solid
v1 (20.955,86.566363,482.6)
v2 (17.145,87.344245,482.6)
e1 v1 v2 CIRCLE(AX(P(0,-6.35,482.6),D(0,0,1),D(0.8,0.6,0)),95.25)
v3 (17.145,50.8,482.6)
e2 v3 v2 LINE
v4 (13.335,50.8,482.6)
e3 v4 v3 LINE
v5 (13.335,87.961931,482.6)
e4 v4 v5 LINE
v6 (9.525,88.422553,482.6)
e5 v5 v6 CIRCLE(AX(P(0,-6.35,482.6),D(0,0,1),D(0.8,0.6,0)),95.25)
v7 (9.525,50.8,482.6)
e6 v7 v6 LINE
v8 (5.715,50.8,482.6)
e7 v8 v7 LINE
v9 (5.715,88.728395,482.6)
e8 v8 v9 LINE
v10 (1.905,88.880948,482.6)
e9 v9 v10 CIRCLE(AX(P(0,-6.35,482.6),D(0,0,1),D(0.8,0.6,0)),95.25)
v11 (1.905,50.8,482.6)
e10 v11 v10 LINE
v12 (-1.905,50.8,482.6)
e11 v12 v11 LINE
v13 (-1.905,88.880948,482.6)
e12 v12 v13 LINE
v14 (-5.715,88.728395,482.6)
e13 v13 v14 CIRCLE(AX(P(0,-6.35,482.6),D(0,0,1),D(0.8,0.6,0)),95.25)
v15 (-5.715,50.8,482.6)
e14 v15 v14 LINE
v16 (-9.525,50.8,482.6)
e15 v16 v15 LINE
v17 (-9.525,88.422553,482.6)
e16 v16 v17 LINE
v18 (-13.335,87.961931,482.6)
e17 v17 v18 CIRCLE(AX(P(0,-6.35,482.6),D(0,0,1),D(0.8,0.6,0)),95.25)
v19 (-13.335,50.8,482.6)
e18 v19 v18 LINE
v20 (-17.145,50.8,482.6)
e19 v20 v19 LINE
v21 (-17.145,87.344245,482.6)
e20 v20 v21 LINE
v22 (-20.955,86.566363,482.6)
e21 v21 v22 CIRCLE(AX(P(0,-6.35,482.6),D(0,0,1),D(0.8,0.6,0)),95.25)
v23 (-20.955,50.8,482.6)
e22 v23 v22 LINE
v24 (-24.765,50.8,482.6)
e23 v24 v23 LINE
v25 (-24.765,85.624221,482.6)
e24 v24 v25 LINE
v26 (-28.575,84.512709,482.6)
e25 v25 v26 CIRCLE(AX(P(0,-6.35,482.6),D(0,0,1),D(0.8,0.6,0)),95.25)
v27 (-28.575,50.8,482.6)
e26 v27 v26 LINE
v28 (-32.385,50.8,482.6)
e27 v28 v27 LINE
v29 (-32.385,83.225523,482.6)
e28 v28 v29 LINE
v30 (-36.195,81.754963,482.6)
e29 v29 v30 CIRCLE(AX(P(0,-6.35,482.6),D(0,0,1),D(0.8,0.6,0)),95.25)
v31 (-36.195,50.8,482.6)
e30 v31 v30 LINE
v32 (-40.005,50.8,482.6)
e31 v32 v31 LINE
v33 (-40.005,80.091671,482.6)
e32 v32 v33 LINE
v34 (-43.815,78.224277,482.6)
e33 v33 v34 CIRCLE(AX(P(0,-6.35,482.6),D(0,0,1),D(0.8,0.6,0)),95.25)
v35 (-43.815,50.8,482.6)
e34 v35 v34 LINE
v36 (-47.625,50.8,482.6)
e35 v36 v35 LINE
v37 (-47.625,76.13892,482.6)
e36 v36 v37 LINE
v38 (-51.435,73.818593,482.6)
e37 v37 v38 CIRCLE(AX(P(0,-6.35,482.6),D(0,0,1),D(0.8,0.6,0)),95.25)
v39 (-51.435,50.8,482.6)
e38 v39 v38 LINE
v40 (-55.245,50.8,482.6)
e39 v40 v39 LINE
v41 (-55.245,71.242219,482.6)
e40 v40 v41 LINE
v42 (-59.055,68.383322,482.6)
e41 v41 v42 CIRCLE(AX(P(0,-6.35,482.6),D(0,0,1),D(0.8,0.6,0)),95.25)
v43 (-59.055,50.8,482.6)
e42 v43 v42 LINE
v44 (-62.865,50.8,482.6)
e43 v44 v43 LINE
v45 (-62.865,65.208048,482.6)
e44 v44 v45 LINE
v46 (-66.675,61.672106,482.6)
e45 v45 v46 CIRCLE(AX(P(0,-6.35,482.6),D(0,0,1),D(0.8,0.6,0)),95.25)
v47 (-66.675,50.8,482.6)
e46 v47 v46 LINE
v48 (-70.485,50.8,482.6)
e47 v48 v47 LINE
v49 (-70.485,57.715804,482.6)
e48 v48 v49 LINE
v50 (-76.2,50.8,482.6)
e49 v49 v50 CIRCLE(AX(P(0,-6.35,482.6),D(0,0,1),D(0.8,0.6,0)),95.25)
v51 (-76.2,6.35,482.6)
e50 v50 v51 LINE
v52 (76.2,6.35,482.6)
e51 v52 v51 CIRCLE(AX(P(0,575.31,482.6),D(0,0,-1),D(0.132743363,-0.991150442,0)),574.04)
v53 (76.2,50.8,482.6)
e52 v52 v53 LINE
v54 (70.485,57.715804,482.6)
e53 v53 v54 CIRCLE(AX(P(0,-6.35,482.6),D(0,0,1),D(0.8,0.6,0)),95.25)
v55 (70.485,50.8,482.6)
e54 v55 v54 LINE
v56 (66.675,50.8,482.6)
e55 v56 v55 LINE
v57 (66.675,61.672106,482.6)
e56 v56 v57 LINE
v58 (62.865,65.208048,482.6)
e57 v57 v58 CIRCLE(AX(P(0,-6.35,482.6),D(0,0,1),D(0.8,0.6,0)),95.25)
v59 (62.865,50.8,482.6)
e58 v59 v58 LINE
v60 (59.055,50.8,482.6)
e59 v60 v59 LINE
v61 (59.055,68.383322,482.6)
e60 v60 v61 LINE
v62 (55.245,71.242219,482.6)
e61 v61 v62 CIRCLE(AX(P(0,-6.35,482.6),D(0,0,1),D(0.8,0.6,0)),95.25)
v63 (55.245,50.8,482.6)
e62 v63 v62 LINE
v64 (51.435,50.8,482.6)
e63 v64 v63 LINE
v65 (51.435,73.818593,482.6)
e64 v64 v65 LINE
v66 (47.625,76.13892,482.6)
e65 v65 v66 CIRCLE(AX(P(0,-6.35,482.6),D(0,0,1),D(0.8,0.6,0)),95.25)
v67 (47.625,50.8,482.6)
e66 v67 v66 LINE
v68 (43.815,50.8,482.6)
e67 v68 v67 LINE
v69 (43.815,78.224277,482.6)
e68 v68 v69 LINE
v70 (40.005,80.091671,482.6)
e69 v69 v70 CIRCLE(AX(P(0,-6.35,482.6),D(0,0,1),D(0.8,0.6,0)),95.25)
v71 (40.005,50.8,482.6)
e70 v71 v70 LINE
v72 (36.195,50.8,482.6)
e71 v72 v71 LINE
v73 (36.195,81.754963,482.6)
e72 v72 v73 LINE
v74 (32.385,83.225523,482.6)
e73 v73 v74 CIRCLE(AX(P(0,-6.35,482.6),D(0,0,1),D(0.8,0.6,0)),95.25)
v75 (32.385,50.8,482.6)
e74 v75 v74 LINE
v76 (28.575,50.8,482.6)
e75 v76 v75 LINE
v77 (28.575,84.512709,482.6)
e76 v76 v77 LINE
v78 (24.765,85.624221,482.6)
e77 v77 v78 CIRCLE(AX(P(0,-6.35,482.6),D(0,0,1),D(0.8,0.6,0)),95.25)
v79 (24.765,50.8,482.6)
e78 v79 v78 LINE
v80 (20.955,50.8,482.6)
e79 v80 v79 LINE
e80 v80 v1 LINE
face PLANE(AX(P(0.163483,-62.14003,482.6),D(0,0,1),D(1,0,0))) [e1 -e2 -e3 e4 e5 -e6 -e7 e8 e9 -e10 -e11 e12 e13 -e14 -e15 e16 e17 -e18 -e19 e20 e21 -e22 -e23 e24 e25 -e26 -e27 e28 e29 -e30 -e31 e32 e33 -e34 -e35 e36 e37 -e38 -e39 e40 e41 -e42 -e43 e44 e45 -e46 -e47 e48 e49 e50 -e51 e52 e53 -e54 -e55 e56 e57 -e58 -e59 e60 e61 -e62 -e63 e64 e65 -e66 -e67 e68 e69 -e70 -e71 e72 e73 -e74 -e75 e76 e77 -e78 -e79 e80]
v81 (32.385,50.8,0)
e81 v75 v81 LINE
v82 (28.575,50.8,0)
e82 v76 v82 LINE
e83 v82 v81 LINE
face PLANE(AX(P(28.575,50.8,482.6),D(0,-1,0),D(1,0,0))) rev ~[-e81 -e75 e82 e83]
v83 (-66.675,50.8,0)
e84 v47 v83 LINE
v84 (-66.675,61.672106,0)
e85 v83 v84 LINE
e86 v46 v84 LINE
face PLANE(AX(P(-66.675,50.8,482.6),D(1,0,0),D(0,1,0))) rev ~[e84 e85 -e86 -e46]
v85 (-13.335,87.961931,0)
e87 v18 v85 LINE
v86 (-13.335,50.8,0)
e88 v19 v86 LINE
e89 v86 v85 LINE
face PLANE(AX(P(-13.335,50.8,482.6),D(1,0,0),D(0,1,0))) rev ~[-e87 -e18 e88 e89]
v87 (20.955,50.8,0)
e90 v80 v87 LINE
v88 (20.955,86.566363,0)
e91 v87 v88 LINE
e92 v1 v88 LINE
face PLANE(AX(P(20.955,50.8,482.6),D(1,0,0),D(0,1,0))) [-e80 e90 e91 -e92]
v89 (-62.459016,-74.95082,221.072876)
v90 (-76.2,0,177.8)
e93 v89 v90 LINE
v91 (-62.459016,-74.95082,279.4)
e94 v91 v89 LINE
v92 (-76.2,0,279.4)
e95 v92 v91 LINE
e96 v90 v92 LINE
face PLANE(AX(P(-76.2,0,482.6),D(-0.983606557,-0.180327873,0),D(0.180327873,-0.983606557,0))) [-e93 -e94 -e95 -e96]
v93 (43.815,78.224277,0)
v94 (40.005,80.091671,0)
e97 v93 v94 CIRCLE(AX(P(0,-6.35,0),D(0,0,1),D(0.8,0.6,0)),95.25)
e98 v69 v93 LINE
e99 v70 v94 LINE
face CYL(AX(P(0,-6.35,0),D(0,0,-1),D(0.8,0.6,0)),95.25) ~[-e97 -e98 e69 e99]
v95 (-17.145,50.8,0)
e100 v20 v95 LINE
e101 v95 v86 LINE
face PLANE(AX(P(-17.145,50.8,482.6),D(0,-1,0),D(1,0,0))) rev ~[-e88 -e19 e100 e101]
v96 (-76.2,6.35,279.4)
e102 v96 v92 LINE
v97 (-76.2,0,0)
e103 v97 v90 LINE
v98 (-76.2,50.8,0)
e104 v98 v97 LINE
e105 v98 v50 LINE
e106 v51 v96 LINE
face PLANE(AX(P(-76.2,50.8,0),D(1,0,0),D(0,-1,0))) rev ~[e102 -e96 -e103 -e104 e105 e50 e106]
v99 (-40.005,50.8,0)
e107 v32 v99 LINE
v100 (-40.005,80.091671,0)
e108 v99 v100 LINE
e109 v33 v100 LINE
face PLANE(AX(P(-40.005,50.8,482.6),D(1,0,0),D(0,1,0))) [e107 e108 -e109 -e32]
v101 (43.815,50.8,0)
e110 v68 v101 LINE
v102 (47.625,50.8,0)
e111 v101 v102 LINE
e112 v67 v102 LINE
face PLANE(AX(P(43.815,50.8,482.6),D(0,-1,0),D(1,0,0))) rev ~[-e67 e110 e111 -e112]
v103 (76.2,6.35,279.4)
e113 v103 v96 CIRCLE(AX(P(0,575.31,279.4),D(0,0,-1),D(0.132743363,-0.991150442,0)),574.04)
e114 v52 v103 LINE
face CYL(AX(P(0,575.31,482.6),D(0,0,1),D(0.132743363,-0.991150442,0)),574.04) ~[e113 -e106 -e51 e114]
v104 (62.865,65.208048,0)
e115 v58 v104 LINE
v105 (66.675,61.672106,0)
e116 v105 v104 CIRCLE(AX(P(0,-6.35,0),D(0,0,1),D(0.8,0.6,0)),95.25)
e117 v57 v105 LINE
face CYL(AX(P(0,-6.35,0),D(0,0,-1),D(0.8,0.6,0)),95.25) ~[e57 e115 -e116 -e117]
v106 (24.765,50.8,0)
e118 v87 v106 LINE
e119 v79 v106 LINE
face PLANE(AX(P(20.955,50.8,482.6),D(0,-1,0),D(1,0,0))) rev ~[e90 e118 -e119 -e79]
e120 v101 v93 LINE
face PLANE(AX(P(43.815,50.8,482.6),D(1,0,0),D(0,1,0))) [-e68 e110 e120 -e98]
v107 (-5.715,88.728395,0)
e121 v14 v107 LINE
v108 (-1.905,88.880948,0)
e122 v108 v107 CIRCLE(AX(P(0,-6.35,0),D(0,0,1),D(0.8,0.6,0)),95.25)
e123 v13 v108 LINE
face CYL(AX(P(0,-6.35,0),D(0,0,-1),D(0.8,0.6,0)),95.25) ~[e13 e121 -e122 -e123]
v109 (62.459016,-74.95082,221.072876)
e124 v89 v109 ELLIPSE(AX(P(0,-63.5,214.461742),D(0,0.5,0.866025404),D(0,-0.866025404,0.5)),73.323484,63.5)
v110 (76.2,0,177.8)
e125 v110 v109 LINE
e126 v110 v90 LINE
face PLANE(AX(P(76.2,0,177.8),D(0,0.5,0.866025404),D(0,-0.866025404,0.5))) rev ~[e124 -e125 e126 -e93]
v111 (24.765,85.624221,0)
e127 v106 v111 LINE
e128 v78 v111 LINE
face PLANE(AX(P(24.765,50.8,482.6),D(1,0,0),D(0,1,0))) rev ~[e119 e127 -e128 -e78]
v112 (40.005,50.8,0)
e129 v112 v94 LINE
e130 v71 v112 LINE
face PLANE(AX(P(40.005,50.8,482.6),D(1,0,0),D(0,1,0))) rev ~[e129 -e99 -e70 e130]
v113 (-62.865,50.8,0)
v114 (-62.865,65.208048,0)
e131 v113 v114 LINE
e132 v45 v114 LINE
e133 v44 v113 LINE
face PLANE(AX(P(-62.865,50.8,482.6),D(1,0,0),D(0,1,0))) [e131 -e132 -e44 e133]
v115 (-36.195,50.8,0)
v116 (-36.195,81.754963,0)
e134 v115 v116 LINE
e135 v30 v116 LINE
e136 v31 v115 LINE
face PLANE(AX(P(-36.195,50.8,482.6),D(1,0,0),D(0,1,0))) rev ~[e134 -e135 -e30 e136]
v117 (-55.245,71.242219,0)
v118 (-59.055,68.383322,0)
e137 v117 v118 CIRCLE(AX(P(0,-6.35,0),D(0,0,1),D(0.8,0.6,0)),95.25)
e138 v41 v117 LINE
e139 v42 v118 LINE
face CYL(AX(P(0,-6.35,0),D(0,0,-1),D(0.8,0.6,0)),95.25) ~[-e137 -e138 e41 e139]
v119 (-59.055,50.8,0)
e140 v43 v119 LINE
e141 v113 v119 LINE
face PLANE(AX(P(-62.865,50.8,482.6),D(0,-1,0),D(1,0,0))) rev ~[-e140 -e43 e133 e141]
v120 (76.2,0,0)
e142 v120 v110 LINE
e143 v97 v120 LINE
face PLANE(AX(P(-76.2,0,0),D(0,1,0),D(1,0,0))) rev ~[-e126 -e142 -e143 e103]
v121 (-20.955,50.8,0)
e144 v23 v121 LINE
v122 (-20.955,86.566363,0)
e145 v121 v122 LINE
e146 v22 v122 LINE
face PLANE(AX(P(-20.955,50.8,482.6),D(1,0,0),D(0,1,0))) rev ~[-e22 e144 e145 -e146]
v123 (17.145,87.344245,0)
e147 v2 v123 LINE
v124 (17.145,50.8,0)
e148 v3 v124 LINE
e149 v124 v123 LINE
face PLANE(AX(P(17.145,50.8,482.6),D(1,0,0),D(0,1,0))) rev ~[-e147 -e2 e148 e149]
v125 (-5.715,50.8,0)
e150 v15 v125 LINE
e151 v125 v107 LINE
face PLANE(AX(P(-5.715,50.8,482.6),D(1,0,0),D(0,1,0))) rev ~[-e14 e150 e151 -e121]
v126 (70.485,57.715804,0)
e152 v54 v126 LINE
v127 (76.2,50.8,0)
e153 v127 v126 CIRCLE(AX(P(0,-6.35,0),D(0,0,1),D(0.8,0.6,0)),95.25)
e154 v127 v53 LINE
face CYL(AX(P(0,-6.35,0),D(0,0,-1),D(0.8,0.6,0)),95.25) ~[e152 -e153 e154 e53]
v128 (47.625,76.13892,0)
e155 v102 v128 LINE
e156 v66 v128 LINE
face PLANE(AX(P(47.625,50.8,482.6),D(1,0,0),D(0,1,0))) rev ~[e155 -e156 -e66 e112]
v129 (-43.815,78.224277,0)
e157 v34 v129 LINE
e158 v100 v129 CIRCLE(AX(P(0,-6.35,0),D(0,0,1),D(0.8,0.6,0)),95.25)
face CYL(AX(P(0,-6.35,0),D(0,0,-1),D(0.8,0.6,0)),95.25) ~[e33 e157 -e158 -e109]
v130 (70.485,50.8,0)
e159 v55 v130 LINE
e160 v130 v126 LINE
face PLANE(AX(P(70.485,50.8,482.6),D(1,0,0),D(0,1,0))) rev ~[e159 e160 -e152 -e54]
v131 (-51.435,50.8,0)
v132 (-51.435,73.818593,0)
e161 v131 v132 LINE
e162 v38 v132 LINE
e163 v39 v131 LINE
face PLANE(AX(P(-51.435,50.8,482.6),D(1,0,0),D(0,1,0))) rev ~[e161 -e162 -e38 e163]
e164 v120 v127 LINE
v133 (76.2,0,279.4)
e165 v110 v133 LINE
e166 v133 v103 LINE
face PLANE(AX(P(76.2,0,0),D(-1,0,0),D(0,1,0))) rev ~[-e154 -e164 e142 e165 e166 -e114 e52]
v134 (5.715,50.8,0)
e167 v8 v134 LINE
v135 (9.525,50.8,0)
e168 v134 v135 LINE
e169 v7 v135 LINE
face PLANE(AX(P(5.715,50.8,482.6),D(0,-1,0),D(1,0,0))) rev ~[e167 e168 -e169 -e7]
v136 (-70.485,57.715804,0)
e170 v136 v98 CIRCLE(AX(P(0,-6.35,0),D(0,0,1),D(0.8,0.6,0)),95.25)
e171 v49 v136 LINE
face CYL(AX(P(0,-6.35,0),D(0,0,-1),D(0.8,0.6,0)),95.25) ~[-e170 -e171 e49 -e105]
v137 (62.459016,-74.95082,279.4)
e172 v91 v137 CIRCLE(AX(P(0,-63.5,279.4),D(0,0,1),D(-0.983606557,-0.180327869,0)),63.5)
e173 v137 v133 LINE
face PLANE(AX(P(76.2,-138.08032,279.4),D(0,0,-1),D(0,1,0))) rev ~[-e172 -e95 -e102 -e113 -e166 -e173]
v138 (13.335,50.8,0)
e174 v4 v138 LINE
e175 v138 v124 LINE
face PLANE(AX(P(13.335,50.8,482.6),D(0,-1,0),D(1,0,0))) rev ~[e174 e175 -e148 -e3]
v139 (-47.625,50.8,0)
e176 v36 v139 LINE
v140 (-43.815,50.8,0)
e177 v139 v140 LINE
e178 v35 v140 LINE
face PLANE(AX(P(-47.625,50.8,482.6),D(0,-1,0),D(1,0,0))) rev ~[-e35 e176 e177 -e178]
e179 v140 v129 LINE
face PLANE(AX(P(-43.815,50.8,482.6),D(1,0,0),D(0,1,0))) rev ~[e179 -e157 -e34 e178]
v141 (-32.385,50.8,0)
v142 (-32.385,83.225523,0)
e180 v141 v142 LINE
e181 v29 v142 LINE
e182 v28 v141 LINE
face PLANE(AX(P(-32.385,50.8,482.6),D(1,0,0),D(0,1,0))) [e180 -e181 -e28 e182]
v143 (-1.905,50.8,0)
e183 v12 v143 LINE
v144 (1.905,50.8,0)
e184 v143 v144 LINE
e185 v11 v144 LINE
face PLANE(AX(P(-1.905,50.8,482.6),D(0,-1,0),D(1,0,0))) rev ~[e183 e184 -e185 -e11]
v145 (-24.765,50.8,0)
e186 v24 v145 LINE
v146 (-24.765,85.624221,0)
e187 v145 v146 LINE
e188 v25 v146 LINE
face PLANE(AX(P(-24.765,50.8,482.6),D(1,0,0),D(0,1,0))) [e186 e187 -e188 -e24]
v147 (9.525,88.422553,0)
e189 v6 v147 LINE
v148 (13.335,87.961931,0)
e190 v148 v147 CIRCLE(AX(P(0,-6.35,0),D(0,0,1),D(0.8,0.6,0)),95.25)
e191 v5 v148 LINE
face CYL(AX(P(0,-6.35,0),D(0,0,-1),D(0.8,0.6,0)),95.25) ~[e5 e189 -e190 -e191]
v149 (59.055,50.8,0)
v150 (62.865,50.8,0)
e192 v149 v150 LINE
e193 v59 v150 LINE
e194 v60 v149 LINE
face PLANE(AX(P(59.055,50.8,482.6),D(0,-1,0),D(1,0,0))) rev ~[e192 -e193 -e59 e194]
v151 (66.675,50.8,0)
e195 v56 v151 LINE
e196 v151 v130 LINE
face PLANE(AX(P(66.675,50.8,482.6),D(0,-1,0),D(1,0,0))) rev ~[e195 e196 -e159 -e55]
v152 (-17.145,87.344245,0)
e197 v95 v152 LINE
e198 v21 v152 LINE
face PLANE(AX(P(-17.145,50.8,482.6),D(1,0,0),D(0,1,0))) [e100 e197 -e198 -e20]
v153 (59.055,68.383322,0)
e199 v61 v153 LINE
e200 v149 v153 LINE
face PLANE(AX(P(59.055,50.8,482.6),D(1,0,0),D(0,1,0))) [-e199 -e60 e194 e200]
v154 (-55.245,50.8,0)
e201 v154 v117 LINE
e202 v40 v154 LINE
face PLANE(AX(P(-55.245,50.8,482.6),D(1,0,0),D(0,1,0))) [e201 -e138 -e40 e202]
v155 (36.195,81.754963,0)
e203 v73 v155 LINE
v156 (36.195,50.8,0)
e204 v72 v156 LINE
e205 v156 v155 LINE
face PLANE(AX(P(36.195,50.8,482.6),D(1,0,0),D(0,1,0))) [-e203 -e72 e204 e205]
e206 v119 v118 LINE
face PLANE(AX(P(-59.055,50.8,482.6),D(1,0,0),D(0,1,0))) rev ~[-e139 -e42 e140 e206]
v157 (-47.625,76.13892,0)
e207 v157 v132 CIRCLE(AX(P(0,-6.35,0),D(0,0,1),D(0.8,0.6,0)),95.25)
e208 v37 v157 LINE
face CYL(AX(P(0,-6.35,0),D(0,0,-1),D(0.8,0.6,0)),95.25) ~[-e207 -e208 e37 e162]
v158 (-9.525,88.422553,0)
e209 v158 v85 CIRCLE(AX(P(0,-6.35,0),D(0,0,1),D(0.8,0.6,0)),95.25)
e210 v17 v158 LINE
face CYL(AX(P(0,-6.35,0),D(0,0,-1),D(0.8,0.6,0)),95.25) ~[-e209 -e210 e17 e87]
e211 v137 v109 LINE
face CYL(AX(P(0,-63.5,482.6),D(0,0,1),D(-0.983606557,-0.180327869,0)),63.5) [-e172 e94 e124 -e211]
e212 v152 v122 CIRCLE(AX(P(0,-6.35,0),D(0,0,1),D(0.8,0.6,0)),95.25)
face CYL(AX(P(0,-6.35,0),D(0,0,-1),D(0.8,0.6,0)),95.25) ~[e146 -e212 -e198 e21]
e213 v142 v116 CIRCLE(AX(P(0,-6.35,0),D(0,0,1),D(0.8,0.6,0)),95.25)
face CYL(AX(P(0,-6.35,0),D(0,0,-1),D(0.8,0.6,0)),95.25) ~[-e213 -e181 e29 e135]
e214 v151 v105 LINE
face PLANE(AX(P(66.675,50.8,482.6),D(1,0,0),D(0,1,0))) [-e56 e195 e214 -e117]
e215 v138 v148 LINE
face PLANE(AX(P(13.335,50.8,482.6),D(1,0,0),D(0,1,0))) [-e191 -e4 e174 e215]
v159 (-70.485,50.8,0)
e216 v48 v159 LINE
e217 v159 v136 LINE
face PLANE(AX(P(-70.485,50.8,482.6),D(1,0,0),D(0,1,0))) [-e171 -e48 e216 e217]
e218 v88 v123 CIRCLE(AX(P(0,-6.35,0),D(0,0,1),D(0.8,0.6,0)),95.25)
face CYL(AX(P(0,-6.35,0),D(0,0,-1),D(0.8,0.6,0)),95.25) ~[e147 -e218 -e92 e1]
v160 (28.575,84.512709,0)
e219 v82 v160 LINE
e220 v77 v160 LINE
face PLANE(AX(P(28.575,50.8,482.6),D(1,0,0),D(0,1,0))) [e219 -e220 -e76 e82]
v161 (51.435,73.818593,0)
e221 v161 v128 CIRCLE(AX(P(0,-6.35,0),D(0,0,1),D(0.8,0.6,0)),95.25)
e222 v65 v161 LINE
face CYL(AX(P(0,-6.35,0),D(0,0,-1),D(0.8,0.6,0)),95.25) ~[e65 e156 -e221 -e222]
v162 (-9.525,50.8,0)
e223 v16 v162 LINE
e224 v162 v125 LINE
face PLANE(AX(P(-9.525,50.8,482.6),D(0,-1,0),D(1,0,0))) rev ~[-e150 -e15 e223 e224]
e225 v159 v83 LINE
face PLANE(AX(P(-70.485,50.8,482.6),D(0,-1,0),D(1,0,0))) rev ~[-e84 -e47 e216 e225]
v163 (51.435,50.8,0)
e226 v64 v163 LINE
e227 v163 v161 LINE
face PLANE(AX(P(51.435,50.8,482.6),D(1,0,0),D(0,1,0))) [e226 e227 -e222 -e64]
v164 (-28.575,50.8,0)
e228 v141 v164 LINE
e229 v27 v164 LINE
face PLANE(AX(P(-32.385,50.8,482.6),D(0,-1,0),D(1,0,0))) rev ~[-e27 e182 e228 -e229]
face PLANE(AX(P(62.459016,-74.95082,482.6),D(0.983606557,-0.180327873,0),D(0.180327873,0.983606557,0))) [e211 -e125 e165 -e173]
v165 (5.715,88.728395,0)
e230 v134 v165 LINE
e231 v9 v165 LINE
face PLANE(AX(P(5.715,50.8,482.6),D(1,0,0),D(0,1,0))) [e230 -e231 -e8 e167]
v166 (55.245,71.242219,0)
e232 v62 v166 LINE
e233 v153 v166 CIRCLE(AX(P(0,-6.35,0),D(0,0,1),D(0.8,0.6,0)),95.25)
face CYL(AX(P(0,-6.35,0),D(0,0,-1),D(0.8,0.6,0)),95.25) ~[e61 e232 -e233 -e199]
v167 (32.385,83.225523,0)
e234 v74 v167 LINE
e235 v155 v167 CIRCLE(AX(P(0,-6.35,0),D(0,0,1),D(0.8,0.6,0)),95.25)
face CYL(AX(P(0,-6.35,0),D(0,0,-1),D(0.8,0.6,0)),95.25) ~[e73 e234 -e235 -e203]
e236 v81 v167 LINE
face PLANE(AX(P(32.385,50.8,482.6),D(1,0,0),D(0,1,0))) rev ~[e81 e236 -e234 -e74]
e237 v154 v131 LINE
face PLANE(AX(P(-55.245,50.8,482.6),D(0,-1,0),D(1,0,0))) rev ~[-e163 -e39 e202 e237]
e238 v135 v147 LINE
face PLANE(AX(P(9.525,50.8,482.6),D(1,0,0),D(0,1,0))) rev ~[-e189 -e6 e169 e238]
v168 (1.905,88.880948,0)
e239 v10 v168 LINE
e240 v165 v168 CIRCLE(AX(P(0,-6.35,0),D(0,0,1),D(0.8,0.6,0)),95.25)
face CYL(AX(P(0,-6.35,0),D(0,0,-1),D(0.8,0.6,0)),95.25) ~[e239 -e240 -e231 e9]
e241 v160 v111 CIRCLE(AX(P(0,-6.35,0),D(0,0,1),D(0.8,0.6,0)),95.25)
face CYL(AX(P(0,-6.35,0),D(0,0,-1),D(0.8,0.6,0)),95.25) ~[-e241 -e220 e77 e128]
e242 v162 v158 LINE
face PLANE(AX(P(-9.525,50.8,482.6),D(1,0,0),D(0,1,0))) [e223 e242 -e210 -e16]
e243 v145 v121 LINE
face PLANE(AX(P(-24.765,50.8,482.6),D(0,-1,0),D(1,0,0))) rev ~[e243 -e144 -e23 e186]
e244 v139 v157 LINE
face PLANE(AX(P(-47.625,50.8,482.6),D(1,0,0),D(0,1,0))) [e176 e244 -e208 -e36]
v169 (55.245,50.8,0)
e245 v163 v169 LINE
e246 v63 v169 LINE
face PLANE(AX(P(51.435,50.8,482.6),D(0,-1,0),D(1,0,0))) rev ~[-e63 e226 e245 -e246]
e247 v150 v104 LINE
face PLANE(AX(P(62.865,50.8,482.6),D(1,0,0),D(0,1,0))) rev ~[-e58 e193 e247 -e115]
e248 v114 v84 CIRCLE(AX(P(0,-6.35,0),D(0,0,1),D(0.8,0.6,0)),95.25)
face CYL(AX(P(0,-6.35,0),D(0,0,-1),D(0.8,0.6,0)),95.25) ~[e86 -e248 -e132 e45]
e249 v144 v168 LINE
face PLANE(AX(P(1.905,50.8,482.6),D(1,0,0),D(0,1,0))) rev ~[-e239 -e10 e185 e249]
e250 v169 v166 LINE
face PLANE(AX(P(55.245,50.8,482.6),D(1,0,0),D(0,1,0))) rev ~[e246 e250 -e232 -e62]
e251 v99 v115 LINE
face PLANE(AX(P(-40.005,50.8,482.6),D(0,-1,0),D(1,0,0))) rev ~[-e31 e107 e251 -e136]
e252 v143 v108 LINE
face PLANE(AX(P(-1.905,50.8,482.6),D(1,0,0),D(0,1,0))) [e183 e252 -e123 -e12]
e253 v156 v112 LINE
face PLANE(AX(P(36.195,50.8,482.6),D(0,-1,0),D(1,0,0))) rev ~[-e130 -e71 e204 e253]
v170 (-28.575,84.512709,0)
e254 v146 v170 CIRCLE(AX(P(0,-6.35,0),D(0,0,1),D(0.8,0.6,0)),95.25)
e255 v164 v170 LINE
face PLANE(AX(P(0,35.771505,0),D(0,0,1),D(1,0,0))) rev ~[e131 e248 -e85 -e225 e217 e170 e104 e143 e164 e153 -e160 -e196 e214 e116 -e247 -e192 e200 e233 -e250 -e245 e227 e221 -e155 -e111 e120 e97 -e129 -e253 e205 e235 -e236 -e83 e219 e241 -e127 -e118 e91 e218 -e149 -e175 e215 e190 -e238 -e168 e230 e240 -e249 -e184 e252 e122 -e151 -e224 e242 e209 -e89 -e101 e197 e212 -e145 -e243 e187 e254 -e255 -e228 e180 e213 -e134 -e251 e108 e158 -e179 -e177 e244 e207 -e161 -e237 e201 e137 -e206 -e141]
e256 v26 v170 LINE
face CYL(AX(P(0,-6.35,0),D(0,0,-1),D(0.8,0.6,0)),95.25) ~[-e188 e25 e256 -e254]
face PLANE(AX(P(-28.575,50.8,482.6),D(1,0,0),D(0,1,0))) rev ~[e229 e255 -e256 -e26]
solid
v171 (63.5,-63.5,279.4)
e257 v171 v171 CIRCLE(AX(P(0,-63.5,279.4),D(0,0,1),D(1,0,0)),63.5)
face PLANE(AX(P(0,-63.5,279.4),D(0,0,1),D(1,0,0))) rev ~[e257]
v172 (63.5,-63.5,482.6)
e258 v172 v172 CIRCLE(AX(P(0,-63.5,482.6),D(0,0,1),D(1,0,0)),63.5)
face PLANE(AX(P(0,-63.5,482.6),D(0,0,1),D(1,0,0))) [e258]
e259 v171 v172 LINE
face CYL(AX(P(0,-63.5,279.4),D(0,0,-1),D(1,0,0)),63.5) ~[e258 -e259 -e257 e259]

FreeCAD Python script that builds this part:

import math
import FreeCAD as App
import Part
import Sketcher
Q = App.Units.Quantity

doc = App.newDocument("Part")
params = doc.addObject("Spreadsheet::Sheet", "Params")
for row, (alias, value) in enumerate([
    ("sketch1_width", "6 in"),
    ("sketch1_height", "2 in"),
    ("sketch1_radius", "3.75 in"),
    ("pad1_length", "19 in"),
    ("sketch2_height", "1.5 in"),
    ("sketch2_width", "0.15 in"),
    ("pocket1_length", "19 in"),
    ("sketch3_radius", "2.5 in"),
    ("sketch3_width", "6 in"),
    ("sketch3_length", "3 in"),
    ("pad2_length", "12 in"),
    ("sketch4_height", "8 in"),
    ("pocket2_length", "10 in"),
    ("sketch5_radius", "22.6 in"),
    ("sketch5_width", "6 in"),
    ("sketch5_height", "0.25 in"),
    ("pocket3_length", "8 in"),
    ("sketch6_diameter", "5 in"),
    ("pad3_length", "8 in"),
], start=1):
    params.set(f"A{row}", alias)
    params.set(f"B{row}", "=" + value)
    params.setAlias(f"B{row}", alias)

body = doc.addObject("PartDesign::Body", "Body")

sketch1 = body.newObject("Sketcher::SketchObject", "Sketch")
sketch1.AttachmentSupport = (doc.getObject("XY_Plane"), [""])
sketch1.MapMode = "FlatFace"
sketch1.addGeometry([
    Part.ArcOfCircle(Part.Circle(App.Vector(0, -6, 0), App.Vector(0, 0, 1), 95), math.radians(37), math.radians(143)),
    Part.LineSegment(App.Vector(-76, 51, 0), App.Vector(-76, 0, 0)),
    Part.LineSegment(App.Vector(-76, 0, 0), App.Vector(76, 0, 0)),
    Part.LineSegment(App.Vector(76, 0, 0), App.Vector(76, 51, 0)),
], False)
sketch1.addConstraint([
    Sketcher.Constraint("Coincident", 0, 2, 1, 1),
    Sketcher.Constraint("Coincident", 1, 2, 2, 1),
    Sketcher.Constraint("Coincident", 2, 2, 3, 1),
    Sketcher.Constraint("Coincident", 3, 2, 0, 1),
    Sketcher.Constraint("Vertical", 1),
    Sketcher.Constraint("Horizontal", 2),
    Sketcher.Constraint("Vertical", 3),
    Sketcher.Constraint("Symmetric", 1, 2, 2, 2, -1, 1),
    Sketcher.Constraint("PointOnObject", 0, 3, -2),
    Sketcher.Constraint("DistanceX", 2, 1, 2, 2, Q("6 in")),
    Sketcher.Constraint("DistanceY", 1, 2, 1, 1, Q("2 in")),
    Sketcher.Constraint("Radius", 0, Q("3.75 in")),
])
sketch1.setExpression("Constraints[9]", "Params.sketch1_width")
sketch1.setExpression("Constraints[10]", "Params.sketch1_height")
sketch1.setExpression("Constraints[11]", "Params.sketch1_radius")
pad1 = body.newObject("PartDesign::Pad", "Pad")
pad1.Profile = sketch1
pad1.setExpression("Length", "Params.pad1_length")

sketch2 = body.newObject("Sketcher::SketchObject", "Sketch001")
sketch2.AttachmentSupport = (doc.getObject("XY_Plane"), [""])
sketch2.MapMode = "FlatFace"
sketch2.AttachmentOffset = App.Placement(App.Vector(0, 0, 19 * 25.4), App.Rotation())
sketch2.addGeometry([
    Part.LineSegment(App.Vector(-1.9, 88.9, 0), App.Vector(-1.9, 50.8, 0)),
    Part.LineSegment(App.Vector(-1.9, 50.8, 0), App.Vector(1.9, 50.8, 0)),
    Part.LineSegment(App.Vector(1.9, 50.8, 0), App.Vector(1.9, 88.9, 0)),
    Part.LineSegment(App.Vector(1.9, 88.9, 0), App.Vector(-1.9, 88.9, 0)),
    Part.LineSegment(App.Vector(5.7, 88.9, 0), App.Vector(5.7, 50.8, 0)),
    Part.LineSegment(App.Vector(5.7, 50.8, 0), App.Vector(9.5, 50.8, 0)),
    Part.LineSegment(App.Vector(9.5, 50.8, 0), App.Vector(9.5, 88.9, 0)),
    Part.LineSegment(App.Vector(9.5, 88.9, 0), App.Vector(5.7, 88.9, 0)),
    Part.LineSegment(App.Vector(13.3, 88.9, 0), App.Vector(13.3, 50.8, 0)),
    Part.LineSegment(App.Vector(13.3, 50.8, 0), App.Vector(17.1, 50.8, 0)),
    Part.LineSegment(App.Vector(17.1, 50.8, 0), App.Vector(17.1, 88.9, 0)),
    Part.LineSegment(App.Vector(17.1, 88.9, 0), App.Vector(13.3, 88.9, 0)),
    Part.LineSegment(App.Vector(21, 88.9, 0), App.Vector(21, 50.8, 0)),
    Part.LineSegment(App.Vector(21, 50.8, 0), App.Vector(24.8, 50.8, 0)),
    Part.LineSegment(App.Vector(24.8, 50.8, 0), App.Vector(24.8, 88.9, 0)),
    Part.LineSegment(App.Vector(24.8, 88.9, 0), App.Vector(21, 88.9, 0)),
    Part.LineSegment(App.Vector(28.6, 88.9, 0), App.Vector(28.6, 50.8, 0)),
    Part.LineSegment(App.Vector(28.6, 50.8, 0), App.Vector(32.4, 50.8, 0)),
    Part.LineSegment(App.Vector(32.4, 50.8, 0), App.Vector(32.4, 88.9, 0)),
    Part.LineSegment(App.Vector(32.4, 88.9, 0), App.Vector(28.6, 88.9, 0)),
    Part.LineSegment(App.Vector(36.2, 88.9, 0), App.Vector(36.2, 50.8, 0)),
    Part.LineSegment(App.Vector(36.2, 50.8, 0), App.Vector(40, 50.8, 0)),
    Part.LineSegment(App.Vector(40, 50.8, 0), App.Vector(40, 88.9, 0)),
    Part.LineSegment(App.Vector(40, 88.9, 0), App.Vector(36.2, 88.9, 0)),
    Part.LineSegment(App.Vector(43.8, 88.9, 0), App.Vector(43.8, 50.8, 0)),
    Part.LineSegment(App.Vector(43.8, 50.8, 0), App.Vector(47.6, 50.8, 0)),
    Part.LineSegment(App.Vector(47.6, 50.8, 0), App.Vector(47.6, 88.9, 0)),
    Part.LineSegment(App.Vector(47.6, 88.9, 0), App.Vector(43.8, 88.9, 0)),
    Part.LineSegment(App.Vector(51.4, 88.9, 0), App.Vector(51.4, 50.8, 0)),
    Part.LineSegment(App.Vector(51.4, 50.8, 0), App.Vector(55.2, 50.8, 0)),
    Part.LineSegment(App.Vector(55.2, 50.8, 0), App.Vector(55.2, 88.9, 0)),
    Part.LineSegment(App.Vector(55.2, 88.9, 0), App.Vector(51.4, 88.9, 0)),
    Part.LineSegment(App.Vector(59.1, 88.9, 0), App.Vector(59.1, 50.8, 0)),
    Part.LineSegment(App.Vector(59.1, 50.8, 0), App.Vector(62.9, 50.8, 0)),
    Part.LineSegment(App.Vector(62.9, 50.8, 0), App.Vector(62.9, 88.9, 0)),
    Part.LineSegment(App.Vector(62.9, 88.9, 0), App.Vector(59.1, 88.9, 0)),
    Part.LineSegment(App.Vector(66.7, 88.9, 0), App.Vector(66.7, 50.8, 0)),
    Part.LineSegment(App.Vector(66.7, 50.8, 0), App.Vector(70.5, 50.8, 0)),
    Part.LineSegment(App.Vector(70.5, 50.8, 0), App.Vector(70.5, 88.9, 0)),
    Part.LineSegment(App.Vector(70.5, 88.9, 0), App.Vector(66.7, 88.9, 0)),
    Part.LineSegment(App.Vector(-9.5, 88.9, 0), App.Vector(-9.5, 50.8, 0)),
    Part.LineSegment(App.Vector(-9.5, 50.8, 0), App.Vector(-5.7, 50.8, 0)),
    Part.LineSegment(App.Vector(-5.7, 50.8, 0), App.Vector(-5.7, 88.9, 0)),
    Part.LineSegment(App.Vector(-5.7, 88.9, 0), App.Vector(-9.5, 88.9, 0)),
    Part.LineSegment(App.Vector(-17.1, 88.9, 0), App.Vector(-17.1, 50.8, 0)),
    Part.LineSegment(App.Vector(-17.1, 50.8, 0), App.Vector(-13.3, 50.8, 0)),
    Part.LineSegment(App.Vector(-13.3, 50.8, 0), App.Vector(-13.3, 88.9, 0)),
    Part.LineSegment(App.Vector(-13.3, 88.9, 0), App.Vector(-17.1, 88.9, 0)),
    Part.LineSegment(App.Vector(-24.8, 88.9, 0), App.Vector(-24.8, 50.8, 0)),
    Part.LineSegment(App.Vector(-24.8, 50.8, 0), App.Vector(-21, 50.8, 0)),
    Part.LineSegment(App.Vector(-21, 50.8, 0), App.Vector(-21, 88.9, 0)),
    Part.LineSegment(App.Vector(-21, 88.9, 0), App.Vector(-24.8, 88.9, 0)),
    Part.LineSegment(App.Vector(-32.4, 88.9, 0), App.Vector(-32.4, 50.8, 0)),
    Part.LineSegment(App.Vector(-32.4, 50.8, 0), App.Vector(-28.6, 50.8, 0)),
    Part.LineSegment(App.Vector(-28.6, 50.8, 0), App.Vector(-28.6, 88.9, 0)),
    Part.LineSegment(App.Vector(-28.6, 88.9, 0), App.Vector(-32.4, 88.9, 0)),
    Part.LineSegment(App.Vector(-40, 88.9, 0), App.Vector(-40, 50.8, 0)),
    Part.LineSegment(App.Vector(-40, 50.8, 0), App.Vector(-36.2, 50.8, 0)),
    Part.LineSegment(App.Vector(-36.2, 50.8, 0), App.Vector(-36.2, 88.9, 0)),
    Part.LineSegment(App.Vector(-36.2, 88.9, 0), App.Vector(-40, 88.9, 0)),
    Part.LineSegment(App.Vector(-47.6, 88.9, 0), App.Vector(-47.6, 50.8, 0)),
    Part.LineSegment(App.Vector(-47.6, 50.8, 0), App.Vector(-43.8, 50.8, 0)),
    Part.LineSegment(App.Vector(-43.8, 50.8, 0), App.Vector(-43.8, 88.9, 0)),
    Part.LineSegment(App.Vector(-43.8, 88.9, 0), App.Vector(-47.6, 88.9, 0)),
    Part.LineSegment(App.Vector(-55.2, 88.9, 0), App.Vector(-55.2, 50.8, 0)),
    Part.LineSegment(App.Vector(-55.2, 50.8, 0), App.Vector(-51.4, 50.8, 0)),
    Part.LineSegment(App.Vector(-51.4, 50.8, 0), App.Vector(-51.4, 88.9, 0)),
    Part.LineSegment(App.Vector(-51.4, 88.9, 0), App.Vector(-55.2, 88.9, 0)),
    Part.LineSegment(App.Vector(-62.9, 88.9, 0), App.Vector(-62.9, 50.8, 0)),
    Part.LineSegment(App.Vector(-62.9, 50.8, 0), App.Vector(-59.1, 50.8, 0)),
    Part.LineSegment(App.Vector(-59.1, 50.8, 0), App.Vector(-59.1, 88.9, 0)),
    Part.LineSegment(App.Vector(-59.1, 88.9, 0), App.Vector(-62.9, 88.9, 0)),
    Part.LineSegment(App.Vector(-70.5, 88.9, 0), App.Vector(-70.5, 50.8, 0)),
    Part.LineSegment(App.Vector(-70.5, 50.8, 0), App.Vector(-66.7, 50.8, 0)),
    Part.LineSegment(App.Vector(-66.7, 50.8, 0), App.Vector(-66.7, 88.9, 0)),
    Part.LineSegment(App.Vector(-66.7, 88.9, 0), App.Vector(-70.5, 88.9, 0)),
], False)
sketch2.addConstraint([
    Sketcher.Constraint("Coincident", 0, 2, 1, 1),
    Sketcher.Constraint("Coincident", 1, 2, 2, 1),
    Sketcher.Constraint("Coincident", 2, 2, 3, 1),
    Sketcher.Constraint("Coincident", 3, 2, 0, 1),
    Sketcher.Constraint("Coincident", 4, 2, 5, 1),
    Sketcher.Constraint("Coincident", 5, 2, 6, 1),
    Sketcher.Constraint("Coincident", 6, 2, 7, 1),
    Sketcher.Constraint("Coincident", 7, 2, 4, 1),
    Sketcher.Constraint("Coincident", 8, 2, 9, 1),
    Sketcher.Constraint("Coincident", 9, 2, 10, 1),
    Sketcher.Constraint("Coincident", 10, 2, 11, 1),
    Sketcher.Constraint("Coincident", 11, 2, 8, 1),
    Sketcher.Constraint("Coincident", 12, 2, 13, 1),
    Sketcher.Constraint("Coincident", 13, 2, 14, 1),
    Sketcher.Constraint("Coincident", 14, 2, 15, 1),
    Sketcher.Constraint("Coincident", 15, 2, 12, 1),
    Sketcher.Constraint("Coincident", 16, 2, 17, 1),
    Sketcher.Constraint("Coincident", 17, 2, 18, 1),
    Sketcher.Constraint("Coincident", 18, 2, 19, 1),
    Sketcher.Constraint("Coincident", 19, 2, 16, 1),
    Sketcher.Constraint("Coincident", 20, 2, 21, 1),
    Sketcher.Constraint("Coincident", 21, 2, 22, 1),
    Sketcher.Constraint("Coincident", 22, 2, 23, 1),
    Sketcher.Constraint("Coincident", 23, 2, 20, 1),
    Sketcher.Constraint("Coincident", 24, 2, 25, 1),
    Sketcher.Constraint("Coincident", 25, 2, 26, 1),
    Sketcher.Constraint("Coincident", 26, 2, 27, 1),
    Sketcher.Constraint("Coincident", 27, 2, 24, 1),
    Sketcher.Constraint("Coincident", 28, 2, 29, 1),
    Sketcher.Constraint("Coincident", 29, 2, 30, 1),
    Sketcher.Constraint("Coincident", 30, 2, 31, 1),
    Sketcher.Constraint("Coincident", 31, 2, 28, 1),
    Sketcher.Constraint("Coincident", 32, 2, 33, 1),
    Sketcher.Constraint("Coincident", 33, 2, 34, 1),
    Sketcher.Constraint("Coincident", 34, 2, 35, 1),
    Sketcher.Constraint("Coincident", 35, 2, 32, 1),
    Sketcher.Constraint("Coincident", 36, 2, 37, 1),
    Sketcher.Constraint("Coincident", 37, 2, 38, 1),
    Sketcher.Constraint("Coincident", 38, 2, 39, 1),
    Sketcher.Constraint("Coincident", 39, 2, 36, 1),
    Sketcher.Constraint("Coincident", 40, 2, 41, 1),
    Sketcher.Constraint("Coincident", 41, 2, 42, 1),
    Sketcher.Constraint("Coincident", 42, 2, 43, 1),
    Sketcher.Constraint("Coincident", 43, 2, 40, 1),
    Sketcher.Constraint("Coincident", 44, 2, 45, 1),
    Sketcher.Constraint("Coincident", 45, 2, 46, 1),
    Sketcher.Constraint("Coincident", 46, 2, 47, 1),
    Sketcher.Constraint("Coincident", 47, 2, 44, 1),
    Sketcher.Constraint("Coincident", 48, 2, 49, 1),
    Sketcher.Constraint("Coincident", 49, 2, 50, 1),
    Sketcher.Constraint("Coincident", 50, 2, 51, 1),
    Sketcher.Constraint("Coincident", 51, 2, 48, 1),
    Sketcher.Constraint("Coincident", 52, 2, 53, 1),
    Sketcher.Constraint("Coincident", 53, 2, 54, 1),
    Sketcher.Constraint("Coincident", 54, 2, 55, 1),
    Sketcher.Constraint("Coincident", 55, 2, 52, 1),
    Sketcher.Constraint("Coincident", 56, 2, 57, 1),
    Sketcher.Constraint("Coincident", 57, 2, 58, 1),
    Sketcher.Constraint("Coincident", 58, 2, 59, 1),
    Sketcher.Constraint("Coincident", 59, 2, 56, 1),
    Sketcher.Constraint("Coincident", 60, 2, 61, 1),
    Sketcher.Constraint("Coincident", 61, 2, 62, 1),
    Sketcher.Constraint("Coincident", 62, 2, 63, 1),
    Sketcher.Constraint("Coincident", 63, 2, 60, 1),
    Sketcher.Constraint("Coincident", 64, 2, 65, 1),
    Sketcher.Constraint("Coincident", 65, 2, 66, 1),
    Sketcher.Constraint("Coincident", 66, 2, 67, 1),
    Sketcher.Constraint("Coincident", 67, 2, 64, 1),
    Sketcher.Constraint("Coincident", 68, 2, 69, 1),
    Sketcher.Constraint("Coincident", 69, 2, 70, 1),
    Sketcher.Constraint("Coincident", 70, 2, 71, 1),
    Sketcher.Constraint("Coincident", 71, 2, 68, 1),
    Sketcher.Constraint("Coincident", 72, 2, 73, 1),
    Sketcher.Constraint("Coincident", 73, 2, 74, 1),
    Sketcher.Constraint("Coincident", 74, 2, 75, 1),
    Sketcher.Constraint("Coincident", 75, 2, 72, 1),
    Sketcher.Constraint("Vertical", 0),
    Sketcher.Constraint("Horizontal", 1),
    Sketcher.Constraint("Vertical", 2),
    Sketcher.Constraint("Horizontal", 3),
    Sketcher.Constraint("Vertical", 4),
    Sketcher.Constraint("Horizontal", 5),
    Sketcher.Constraint("Vertical", 6),
    Sketcher.Constraint("Horizontal", 7),
    Sketcher.Constraint("Vertical", 8),
    Sketcher.Constraint("Horizontal", 9),
    Sketcher.Constraint("Vertical", 10),
    Sketcher.Constraint("Horizontal", 11),
    Sketcher.Constraint("Vertical", 12),
    Sketcher.Constraint("Horizontal", 13),
    Sketcher.Constraint("Vertical", 14),
    Sketcher.Constraint("Horizontal", 15),
    Sketcher.Constraint("Vertical", 16),
    Sketcher.Constraint("Horizontal", 17),
    Sketcher.Constraint("Vertical", 18),
    Sketcher.Constraint("Horizontal", 19),
    Sketcher.Constraint("Vertical", 20),
    Sketcher.Constraint("Horizontal", 21),
    Sketcher.Constraint("Vertical", 22),
    Sketcher.Constraint("Horizontal", 23),
    Sketcher.Constraint("Vertical", 24),
    Sketcher.Constraint("Horizontal", 25),
    Sketcher.Constraint("Vertical", 26),
    Sketcher.Constraint("Horizontal", 27),
    Sketcher.Constraint("Vertical", 28),
    Sketcher.Constraint("Horizontal", 29),
    Sketcher.Constraint("Vertical", 30),
    Sketcher.Constraint("Horizontal", 31),
    Sketcher.Constraint("Vertical", 32),
    Sketcher.Constraint("Horizontal", 33),
    Sketcher.Constraint("Vertical", 34),
    Sketcher.Constraint("Horizontal", 35),
    Sketcher.Constraint("Vertical", 36),
    Sketcher.Constraint("Horizontal", 37),
    Sketcher.Constraint("Vertical", 38),
    Sketcher.Constraint("Horizontal", 39),
    Sketcher.Constraint("Vertical", 40),
    Sketcher.Constraint("Horizontal", 41),
    Sketcher.Constraint("Vertical", 42),
    Sketcher.Constraint("Horizontal", 43),
    Sketcher.Constraint("Vertical", 44),
    Sketcher.Constraint("Horizontal", 45),
    Sketcher.Constraint("Vertical", 46),
    Sketcher.Constraint("Horizontal", 47),
    Sketcher.Constraint("Vertical", 48),
    Sketcher.Constraint("Horizontal", 49),
    Sketcher.Constraint("Vertical", 50),
    Sketcher.Constraint("Horizontal", 51),
    Sketcher.Constraint("Vertical", 52),
    Sketcher.Constraint("Horizontal", 53),
    Sketcher.Constraint("Vertical", 54),
    Sketcher.Constraint("Horizontal", 55),
    Sketcher.Constraint("Vertical", 56),
    Sketcher.Constraint("Horizontal", 57),
    Sketcher.Constraint("Vertical", 58),
    Sketcher.Constraint("Horizontal", 59),
    Sketcher.Constraint("Vertical", 60),
    Sketcher.Constraint("Horizontal", 61),
    Sketcher.Constraint("Vertical", 62),
    Sketcher.Constraint("Horizontal", 63),
    Sketcher.Constraint("Vertical", 64),
    Sketcher.Constraint("Horizontal", 65),
    Sketcher.Constraint("Vertical", 66),
    Sketcher.Constraint("Horizontal", 67),
    Sketcher.Constraint("Vertical", 68),
    Sketcher.Constraint("Horizontal", 69),
    Sketcher.Constraint("Vertical", 70),
    Sketcher.Constraint("Horizontal", 71),
    Sketcher.Constraint("Vertical", 72),
    Sketcher.Constraint("Horizontal", 73),
    Sketcher.Constraint("Vertical", 74),
    Sketcher.Constraint("Horizontal", 75),
    Sketcher.Constraint("Symmetric", 5, 2, 40, 2, -2),
    Sketcher.Constraint("Symmetric", 7, 2, 42, 2, -2),
    Sketcher.Constraint("Symmetric", 9, 2, 44, 2, -2),
    Sketcher.Constraint("Symmetric", 11, 2, 46, 2, -2),
    Sketcher.Constraint("Symmetric", 13, 2, 48, 2, -2),
    Sketcher.Constraint("Symmetric", 15, 2, 50, 2, -2),
    Sketcher.Constraint("Symmetric", 17, 2, 52, 2, -2),
    Sketcher.Constraint("Symmetric", 19, 2, 54, 2, -2),
    Sketcher.Constraint("Symmetric", 21, 2, 56, 2, -2),
    Sketcher.Constraint("Symmetric", 23, 2, 58, 2, -2),
    Sketcher.Constraint("Symmetric", 25, 2, 60, 2, -2),
    Sketcher.Constraint("Symmetric", 27, 2, 62, 2, -2),
    Sketcher.Constraint("Symmetric", 29, 2, 64, 2, -2),
    Sketcher.Constraint("Symmetric", 31, 2, 66, 2, -2),
    Sketcher.Constraint("Symmetric", 33, 2, 68, 2, -2),
    Sketcher.Constraint("Symmetric", 35, 2, 70, 2, -2),
    Sketcher.Constraint("Symmetric", 37, 2, 72, 2, -2),
    Sketcher.Constraint("Symmetric", 39, 2, 74, 2, -2),
    Sketcher.Constraint("Horizontal", 1, 2, 4, 2),
    Sketcher.Constraint("Horizontal", 3, 2, 6, 2),
    Sketcher.Constraint("Horizontal", 5, 2, 8, 2),
    Sketcher.Constraint("Horizontal", 7, 2, 10, 2),
    Sketcher.Constraint("Horizontal", 9, 2, 12, 2),
    Sketcher.Constraint("Horizontal", 11, 2, 14, 2),
    Sketcher.Constraint("Horizontal", 13, 2, 16, 2),
    Sketcher.Constraint("Horizontal", 15, 2, 18, 2),
    Sketcher.Constraint("Horizontal", 17, 2, 20, 2),
    Sketcher.Constraint("Horizontal", 19, 2, 22, 2),
    Sketcher.Constraint("Horizontal", 21, 2, 24, 2),
    Sketcher.Constraint("Horizontal", 23, 2, 26, 2),
    Sketcher.Constraint("Horizontal", 25, 2, 28, 2),
    Sketcher.Constraint("Horizontal", 27, 2, 30, 2),
    Sketcher.Constraint("Horizontal", 29, 2, 32, 2),
    Sketcher.Constraint("Horizontal", 31, 2, 34, 2),
    Sketcher.Constraint("Horizontal", 33, 2, 36, 2),
    Sketcher.Constraint("Horizontal", 35, 2, 38, 2),
    Sketcher.Constraint("Equal", 3, 5),
    Sketcher.Constraint("Equal", 7, 9),
    Sketcher.Constraint("Equal", 11, 13),
    Sketcher.Constraint("Equal", 15, 17),
    Sketcher.Constraint("Equal", 19, 21),
    Sketcher.Constraint("Equal", 23, 25),
    Sketcher.Constraint("Equal", 27, 29),
    Sketcher.Constraint("Equal", 31, 33),
    Sketcher.Constraint("Equal", 35, 37),
    Sketcher.Constraint("DistanceY", 0, 2, 0, 1, Q("1.5 in")),
    Sketcher.Constraint("DistanceY", -1, 1, 0, 2, Q("2 in")),
    Sketcher.Constraint("DistanceX", 1, 1, 1, 2, Q("0.15 in")),
    Sketcher.Constraint("DistanceX", 0, 2, -1, 1, Q("0.075 in")),
    Sketcher.Constraint("DistanceX", -1, 1, 4, 2, Q("0.225 in")),
    Sketcher.Constraint("DistanceX", -1, 1, 8, 2, Q("0.525 in")),
    Sketcher.Constraint("DistanceX", -1, 1, 12, 2, Q("0.825 in")),
    Sketcher.Constraint("DistanceX", -1, 1, 16, 2, Q("1.125 in")),
    Sketcher.Constraint("DistanceX", -1, 1, 20, 2, Q("1.425 in")),
    Sketcher.Constraint("DistanceX", -1, 1, 24, 2, Q("1.725 in")),
    Sketcher.Constraint("DistanceX", -1, 1, 28, 2, Q("2.025 in")),
    Sketcher.Constraint("DistanceX", -1, 1, 32, 2, Q("2.325 in")),
    Sketcher.Constraint("DistanceX", -1, 1, 36, 2, Q("2.625 in")),
])
sketch2.setExpression("Constraints[197]", "Params.sketch2_height")
sketch2.setExpression("Constraints[199]", "Params.sketch2_width")
pocket1 = body.newObject("PartDesign::Pocket", "Pocket")
pocket1.Profile = sketch2
pocket1.setExpression("Length", "Params.pocket1_length")

sketch3 = body.newObject("Sketcher::SketchObject", "Sketch002")
sketch3.AttachmentSupport = (doc.getObject("XY_Plane"), [""])
sketch3.MapMode = "FlatFace"
sketch3.AttachmentOffset = App.Placement(App.Vector(0, 0, 19 * 25.4), App.Rotation())
sketch3.addGeometry([
    Part.ArcOfCircle(Part.Circle(App.Vector(0, -64, 0), App.Vector(0, 0, 1), 63), math.radians(-170), math.radians(-10)),
    Part.LineSegment(App.Vector(62, -75, 0), App.Vector(76, 0, 0)),
    Part.LineSegment(App.Vector(76, 0, 0), App.Vector(-76, 0, 0)),
    Part.LineSegment(App.Vector(-76, 0, 0), App.Vector(-62, -75, 0)),
], False)
sketch3.addConstraint([
    Sketcher.Constraint("Tangent", 0, 2, 1, 1),
    Sketcher.Constraint("Coincident", 1, 2, 2, 1),
    Sketcher.Constraint("Coincident", 2, 2, 3, 1),
    Sketcher.Constraint("Tangent", 3, 2, 0, 1),
    Sketcher.Constraint("Horizontal", 2),
    Sketcher.Constraint("Symmetric", 1, 2, 2, 2, -1, 1),
    Sketcher.Constraint("PointOnObject", 0, 3, -2),
    Sketcher.Constraint("Radius", 0, Q("2.5 in")),
    Sketcher.Constraint("DistanceX", 2, 2, 2, 1, Q("6 in")),
    Sketcher.Constraint("Distance", 1, Q("3 in")),
])
sketch3.setExpression("Constraints[7]", "Params.sketch3_radius")
sketch3.setExpression("Constraints[8]", "Params.sketch3_width")
sketch3.setExpression("Constraints[9]", "Params.sketch3_length")
pad2 = body.newObject("PartDesign::Pad", "Pad001")
pad2.Profile = sketch3
pad2.setExpression("Length", "Params.pad2_length")
pad2.Reversed = True

sketch4 = body.newObject("Sketcher::SketchObject", "Sketch003")
sketch4.AttachmentSupport = (doc.getObject("YZ_Plane"), [""])
sketch4.MapMode = "FlatFace"
sketch4.AttachmentOffset = App.Placement(App.Vector(0, 0, 3 * 25.4), App.Rotation())
sketch4.addGeometry([
    Part.LineSegment(App.Vector(-138, 178, 0), App.Vector(0, 178, 0)),
    Part.LineSegment(App.Vector(0, 178, 0), App.Vector(-138, 258, 0)),
    Part.LineSegment(App.Vector(-138, 258, 0), App.Vector(-138, 178, 0)),
    Part.LineSegment(App.Vector(-138, 483, 0), App.Vector(-138, 279, 0)),
    Part.LineSegment(App.Vector(-138, 279, 0), App.Vector(0, 279, 0)),
    Part.LineSegment(App.Vector(0, 279, 0), App.Vector(0, 483, 0)),
    Part.LineSegment(App.Vector(0, 483, 0), App.Vector(-138, 483, 0)),
], False)
sketch4.addConstraint([
    Sketcher.Constraint("Coincident", 0, 2, 1, 1),
    Sketcher.Constraint("Coincident", 1, 2, 2, 1),
    Sketcher.Constraint("Coincident", 2, 2, 0, 1),
    Sketcher.Constraint("Coincident", 3, 2, 4, 1),
    Sketcher.Constraint("Coincident", 4, 2, 5, 1),
    Sketcher.Constraint("Coincident", 5, 2, 6, 1),
    Sketcher.Constraint("Coincident", 6, 2, 3, 1),
    Sketcher.Constraint("Horizontal", 0),
    Sketcher.Constraint("Vertical", 2),
    Sketcher.Constraint("Vertical", 3),
    Sketcher.Constraint("Horizontal", 4),
    Sketcher.Constraint("Vertical", 5),
    Sketcher.Constraint("Horizontal", 6),
    Sketcher.Constraint("PointOnObject", 0, 2, -2),
    Sketcher.Constraint("PointOnObject", 4, 2, -2),
    Sketcher.Constraint("Vertical", 2, 2, 3, 2),
    Sketcher.Constraint("DistanceY", 3, 2, 3, 1, Q("8 in")),
    Sketcher.Constraint("DistanceY", -1, 1, 0, 2, Q("7 in")),
    Sketcher.Constraint("DistanceY", -1, 1, 3, 2, Q("11 in")),
    Sketcher.Constraint("Angle", 1, Q("150 deg")),
    Sketcher.Constraint("DistanceX", 0, 1, 0, 2, 138.08032),
])
sketch4.setExpression("Constraints[16]", "Params.sketch4_height")
pocket2 = body.newObject("PartDesign::Pocket", "Pocket001")
pocket2.Profile = sketch4
pocket2.setExpression("Length", "Params.pocket2_length")

sketch5 = body.newObject("Sketcher::SketchObject", "Sketch004")
sketch5.AttachmentSupport = (doc.getObject("XY_Plane"), [""])
sketch5.MapMode = "FlatFace"
sketch5.AttachmentOffset = App.Placement(App.Vector(0, 0, 19 * 25.4), App.Rotation())
sketch5.addGeometry([
    Part.ArcOfCircle(Part.Circle(App.Vector(0, 575, 0), App.Vector(0, 0, 1), 574), math.radians(-97.63), math.radians(-82.37)),
    Part.LineSegment(App.Vector(-76, 6, 0), App.Vector(-76, 0, 0)),
    Part.LineSegment(App.Vector(-76, 0, 0), App.Vector(76, 0, 0)),
    Part.LineSegment(App.Vector(76, 0, 0), App.Vector(76, 6, 0)),
], False)
sketch5.addConstraint([
    Sketcher.Constraint("Coincident", 0, 1, 1, 1),
    Sketcher.Constraint("Coincident", 1, 2, 2, 1),
    Sketcher.Constraint("Coincident", 2, 2, 3, 1),
    Sketcher.Constraint("Coincident", 3, 2, 0, 2),
    Sketcher.Constraint("Vertical", 1),
    Sketcher.Constraint("Horizontal", 2),
    Sketcher.Constraint("Vertical", 3),
    Sketcher.Constraint("Symmetric", 1, 2, 2, 2, -1, 1),
    Sketcher.Constraint("PointOnObject", 0, 3, -2),
    Sketcher.Constraint("Radius", 0, Q("22.6 in")),
    Sketcher.Constraint("DistanceX", 2, 1, 2, 2, Q("6 in")),
    Sketcher.Constraint("DistanceY", 1, 2, 1, 1, Q("0.25 in")),
])
sketch5.setExpression("Constraints[9]", "Params.sketch5_radius")
sketch5.setExpression("Constraints[10]", "Params.sketch5_width")
sketch5.setExpression("Constraints[11]", "Params.sketch5_height")
pocket3 = body.newObject("PartDesign::Pocket", "Pocket002")
pocket3.Profile = sketch5
pocket3.setExpression("Length", "Params.pocket3_length")
body2 = doc.addObject("PartDesign::Body", "Body001")

sketch6 = body2.newObject("Sketcher::SketchObject", "Sketch005")
sketch6.AttachmentSupport = (doc.getObject("XY_Plane001"), [""])
sketch6.MapMode = "FlatFace"
sketch6.AttachmentOffset = App.Placement(App.Vector(0, 0, 11 * 25.4), App.Rotation())
sketch6.addGeometry(Part.Circle(App.Vector(0, -64, 0), App.Vector(0, 0, 1), 64), False)
sketch6.addConstraint([
    Sketcher.Constraint("PointOnObject", 0, 3, -2),
    Sketcher.Constraint("Diameter", 0, Q("5 in")),
    Sketcher.Constraint("DistanceY", 0, 3, -1, 1, Q("2.5 in")),
])
sketch6.setExpression("Constraints[1]", "Params.sketch6_diameter")
pad3 = body2.newObject("PartDesign::Pad", "Pad002")
pad3.Profile = sketch6
pad3.setExpression("Length", "Params.pad3_length")

doc.recompute()
